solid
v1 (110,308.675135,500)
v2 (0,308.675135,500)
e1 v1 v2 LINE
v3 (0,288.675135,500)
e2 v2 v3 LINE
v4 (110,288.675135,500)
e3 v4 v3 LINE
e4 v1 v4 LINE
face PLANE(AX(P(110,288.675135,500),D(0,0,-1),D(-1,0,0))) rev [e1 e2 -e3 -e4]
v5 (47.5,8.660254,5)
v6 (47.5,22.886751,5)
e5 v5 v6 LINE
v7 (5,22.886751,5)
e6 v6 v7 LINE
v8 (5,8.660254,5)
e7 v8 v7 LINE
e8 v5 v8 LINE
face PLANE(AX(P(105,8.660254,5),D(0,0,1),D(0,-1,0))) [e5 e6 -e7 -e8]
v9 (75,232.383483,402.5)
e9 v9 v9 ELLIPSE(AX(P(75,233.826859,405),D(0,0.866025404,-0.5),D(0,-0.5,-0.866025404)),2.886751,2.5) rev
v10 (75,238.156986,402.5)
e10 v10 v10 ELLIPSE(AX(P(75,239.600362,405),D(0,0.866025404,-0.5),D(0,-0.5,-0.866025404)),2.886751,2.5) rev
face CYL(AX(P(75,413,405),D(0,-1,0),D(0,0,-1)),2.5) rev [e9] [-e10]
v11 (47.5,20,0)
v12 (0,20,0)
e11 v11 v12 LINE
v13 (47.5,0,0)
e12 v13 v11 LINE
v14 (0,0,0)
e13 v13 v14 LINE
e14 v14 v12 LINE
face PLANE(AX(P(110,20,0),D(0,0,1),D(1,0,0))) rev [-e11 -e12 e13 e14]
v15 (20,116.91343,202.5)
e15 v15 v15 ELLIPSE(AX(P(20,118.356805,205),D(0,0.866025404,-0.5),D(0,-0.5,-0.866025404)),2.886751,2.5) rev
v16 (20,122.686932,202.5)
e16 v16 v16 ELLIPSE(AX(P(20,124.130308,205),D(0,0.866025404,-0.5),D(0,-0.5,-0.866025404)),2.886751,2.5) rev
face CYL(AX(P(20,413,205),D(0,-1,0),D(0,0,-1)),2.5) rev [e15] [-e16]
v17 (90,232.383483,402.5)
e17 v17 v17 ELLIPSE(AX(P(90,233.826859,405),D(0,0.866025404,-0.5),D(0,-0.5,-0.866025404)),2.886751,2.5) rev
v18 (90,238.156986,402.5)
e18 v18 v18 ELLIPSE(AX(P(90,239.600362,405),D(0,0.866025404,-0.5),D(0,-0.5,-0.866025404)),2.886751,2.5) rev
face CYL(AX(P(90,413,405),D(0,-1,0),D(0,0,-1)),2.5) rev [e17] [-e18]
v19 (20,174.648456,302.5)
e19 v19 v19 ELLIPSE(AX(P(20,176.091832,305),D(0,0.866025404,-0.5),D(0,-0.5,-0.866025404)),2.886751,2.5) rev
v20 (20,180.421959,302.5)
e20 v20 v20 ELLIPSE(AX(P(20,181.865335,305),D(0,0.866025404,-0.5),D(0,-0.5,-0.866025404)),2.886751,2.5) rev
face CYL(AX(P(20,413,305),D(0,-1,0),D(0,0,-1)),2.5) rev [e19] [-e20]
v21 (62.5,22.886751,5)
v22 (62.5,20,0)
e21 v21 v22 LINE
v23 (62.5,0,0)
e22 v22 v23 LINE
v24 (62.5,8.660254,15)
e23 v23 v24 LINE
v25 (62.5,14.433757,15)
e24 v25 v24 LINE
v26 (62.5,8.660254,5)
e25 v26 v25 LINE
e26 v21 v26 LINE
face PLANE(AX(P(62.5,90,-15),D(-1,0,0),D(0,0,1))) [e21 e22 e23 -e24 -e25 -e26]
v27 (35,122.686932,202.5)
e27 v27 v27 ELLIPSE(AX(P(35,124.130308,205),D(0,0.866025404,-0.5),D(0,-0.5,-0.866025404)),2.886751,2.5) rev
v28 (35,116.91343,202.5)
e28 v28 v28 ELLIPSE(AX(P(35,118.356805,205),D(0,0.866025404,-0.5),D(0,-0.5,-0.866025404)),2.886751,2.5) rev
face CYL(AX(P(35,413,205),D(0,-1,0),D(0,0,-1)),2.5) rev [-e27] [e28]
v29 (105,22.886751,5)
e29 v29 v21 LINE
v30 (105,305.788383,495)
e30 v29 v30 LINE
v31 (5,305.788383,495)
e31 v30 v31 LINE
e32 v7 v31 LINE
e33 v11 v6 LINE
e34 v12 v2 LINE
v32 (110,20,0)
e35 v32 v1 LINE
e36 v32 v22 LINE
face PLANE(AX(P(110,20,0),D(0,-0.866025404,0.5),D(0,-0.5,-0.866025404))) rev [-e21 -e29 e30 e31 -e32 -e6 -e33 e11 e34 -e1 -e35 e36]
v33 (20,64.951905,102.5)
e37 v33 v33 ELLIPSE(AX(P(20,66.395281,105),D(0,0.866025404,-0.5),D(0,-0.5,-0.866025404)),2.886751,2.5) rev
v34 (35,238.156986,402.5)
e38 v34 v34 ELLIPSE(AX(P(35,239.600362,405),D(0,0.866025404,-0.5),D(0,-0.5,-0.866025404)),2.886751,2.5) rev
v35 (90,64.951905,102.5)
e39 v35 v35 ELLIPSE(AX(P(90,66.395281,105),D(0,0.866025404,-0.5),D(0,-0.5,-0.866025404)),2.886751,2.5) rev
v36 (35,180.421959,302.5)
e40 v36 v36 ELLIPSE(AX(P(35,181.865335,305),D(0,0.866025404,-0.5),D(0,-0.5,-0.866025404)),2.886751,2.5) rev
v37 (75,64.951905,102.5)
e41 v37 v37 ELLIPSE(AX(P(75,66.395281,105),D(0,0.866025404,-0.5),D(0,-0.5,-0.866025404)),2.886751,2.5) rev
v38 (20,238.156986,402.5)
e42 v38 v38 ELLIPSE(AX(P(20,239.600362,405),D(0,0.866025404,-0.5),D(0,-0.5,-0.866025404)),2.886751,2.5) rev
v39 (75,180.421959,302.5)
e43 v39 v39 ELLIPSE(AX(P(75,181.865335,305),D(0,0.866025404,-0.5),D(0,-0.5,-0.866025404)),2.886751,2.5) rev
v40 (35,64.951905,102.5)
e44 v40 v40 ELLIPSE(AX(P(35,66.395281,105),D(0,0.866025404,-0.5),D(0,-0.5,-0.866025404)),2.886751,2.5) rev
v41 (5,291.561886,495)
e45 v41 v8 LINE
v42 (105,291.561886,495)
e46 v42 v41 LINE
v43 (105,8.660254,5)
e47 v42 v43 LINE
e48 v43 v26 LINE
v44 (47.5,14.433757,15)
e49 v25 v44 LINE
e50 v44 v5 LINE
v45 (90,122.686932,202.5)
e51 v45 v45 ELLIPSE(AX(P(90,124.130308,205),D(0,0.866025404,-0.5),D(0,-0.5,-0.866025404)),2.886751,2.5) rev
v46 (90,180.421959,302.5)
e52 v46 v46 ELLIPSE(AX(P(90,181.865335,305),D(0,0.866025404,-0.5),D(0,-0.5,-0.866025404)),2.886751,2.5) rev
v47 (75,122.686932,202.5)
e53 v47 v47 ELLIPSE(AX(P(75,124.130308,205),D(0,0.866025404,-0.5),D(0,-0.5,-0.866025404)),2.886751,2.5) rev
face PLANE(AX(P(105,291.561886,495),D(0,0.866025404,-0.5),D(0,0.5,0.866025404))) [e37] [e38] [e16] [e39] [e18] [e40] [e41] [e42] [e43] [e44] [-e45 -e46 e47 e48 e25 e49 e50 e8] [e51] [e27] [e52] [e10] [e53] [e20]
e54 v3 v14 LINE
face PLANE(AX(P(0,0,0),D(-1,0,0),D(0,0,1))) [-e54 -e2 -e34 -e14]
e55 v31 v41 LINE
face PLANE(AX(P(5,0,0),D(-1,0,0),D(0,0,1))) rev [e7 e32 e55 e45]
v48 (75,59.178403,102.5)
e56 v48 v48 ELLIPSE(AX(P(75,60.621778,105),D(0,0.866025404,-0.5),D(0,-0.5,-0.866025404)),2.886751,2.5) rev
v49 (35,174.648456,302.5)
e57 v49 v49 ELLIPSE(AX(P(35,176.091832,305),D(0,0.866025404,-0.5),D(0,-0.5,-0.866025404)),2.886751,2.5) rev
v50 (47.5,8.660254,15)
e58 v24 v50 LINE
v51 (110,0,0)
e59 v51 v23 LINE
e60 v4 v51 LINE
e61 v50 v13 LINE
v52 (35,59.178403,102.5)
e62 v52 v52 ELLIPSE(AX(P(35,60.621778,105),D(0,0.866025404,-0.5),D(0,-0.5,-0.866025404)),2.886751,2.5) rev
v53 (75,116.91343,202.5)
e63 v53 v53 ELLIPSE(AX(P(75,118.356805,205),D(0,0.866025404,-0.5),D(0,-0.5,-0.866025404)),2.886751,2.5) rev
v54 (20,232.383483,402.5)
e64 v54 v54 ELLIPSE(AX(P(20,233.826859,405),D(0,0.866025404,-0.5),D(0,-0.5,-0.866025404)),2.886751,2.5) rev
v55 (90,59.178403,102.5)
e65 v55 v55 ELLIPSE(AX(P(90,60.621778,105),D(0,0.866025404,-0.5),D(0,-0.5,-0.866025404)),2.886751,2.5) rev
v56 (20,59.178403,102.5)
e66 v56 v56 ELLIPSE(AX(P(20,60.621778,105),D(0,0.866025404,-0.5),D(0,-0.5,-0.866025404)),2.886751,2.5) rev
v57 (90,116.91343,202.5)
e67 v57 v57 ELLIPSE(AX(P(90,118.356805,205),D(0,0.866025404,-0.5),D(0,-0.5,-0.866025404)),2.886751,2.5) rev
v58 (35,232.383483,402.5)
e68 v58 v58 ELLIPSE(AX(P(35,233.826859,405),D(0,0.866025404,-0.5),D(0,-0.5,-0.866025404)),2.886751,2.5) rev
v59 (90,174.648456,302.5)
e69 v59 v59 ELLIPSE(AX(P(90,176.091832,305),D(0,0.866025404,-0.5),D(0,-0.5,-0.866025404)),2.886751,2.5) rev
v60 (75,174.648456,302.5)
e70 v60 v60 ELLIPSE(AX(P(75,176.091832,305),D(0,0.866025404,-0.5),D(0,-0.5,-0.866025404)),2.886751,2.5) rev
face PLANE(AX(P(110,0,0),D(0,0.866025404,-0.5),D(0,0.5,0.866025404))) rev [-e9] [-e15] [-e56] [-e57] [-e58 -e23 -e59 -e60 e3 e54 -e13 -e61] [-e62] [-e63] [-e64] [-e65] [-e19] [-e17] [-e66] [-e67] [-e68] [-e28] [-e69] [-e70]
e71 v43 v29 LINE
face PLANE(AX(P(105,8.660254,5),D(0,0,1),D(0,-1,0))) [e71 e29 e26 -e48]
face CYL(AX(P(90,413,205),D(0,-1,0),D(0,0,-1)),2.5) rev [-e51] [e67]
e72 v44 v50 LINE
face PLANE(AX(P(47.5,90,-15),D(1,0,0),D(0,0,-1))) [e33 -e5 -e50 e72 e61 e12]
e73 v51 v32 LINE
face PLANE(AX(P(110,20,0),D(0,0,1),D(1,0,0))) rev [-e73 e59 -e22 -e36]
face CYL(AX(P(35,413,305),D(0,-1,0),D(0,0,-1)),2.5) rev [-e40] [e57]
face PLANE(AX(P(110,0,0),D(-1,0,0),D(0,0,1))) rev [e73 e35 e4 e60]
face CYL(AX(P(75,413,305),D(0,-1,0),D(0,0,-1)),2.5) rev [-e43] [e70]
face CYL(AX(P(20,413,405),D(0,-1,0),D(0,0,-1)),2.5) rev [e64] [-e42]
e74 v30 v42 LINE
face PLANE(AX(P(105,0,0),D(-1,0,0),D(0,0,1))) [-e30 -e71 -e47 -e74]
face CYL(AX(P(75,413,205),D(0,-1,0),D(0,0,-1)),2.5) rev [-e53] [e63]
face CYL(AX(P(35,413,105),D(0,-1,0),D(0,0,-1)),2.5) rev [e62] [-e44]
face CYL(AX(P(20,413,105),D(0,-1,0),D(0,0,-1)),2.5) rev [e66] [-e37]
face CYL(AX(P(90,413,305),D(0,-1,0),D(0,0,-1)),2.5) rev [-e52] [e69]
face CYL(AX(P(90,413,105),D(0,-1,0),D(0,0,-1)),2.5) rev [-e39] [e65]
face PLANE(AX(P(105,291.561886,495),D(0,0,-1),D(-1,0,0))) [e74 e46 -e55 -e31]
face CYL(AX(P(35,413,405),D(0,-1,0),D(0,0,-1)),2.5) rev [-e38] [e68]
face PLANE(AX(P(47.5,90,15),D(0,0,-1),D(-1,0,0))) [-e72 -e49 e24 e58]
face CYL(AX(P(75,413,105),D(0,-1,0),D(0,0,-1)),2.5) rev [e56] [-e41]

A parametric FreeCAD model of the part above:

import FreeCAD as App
import Part
import Sketcher
Q = App.Units.Quantity


def add_polygon(sketch, points):
    """Adds a closed chain of lines whose ends are joined by coincident constraints."""
    first, n = sketch.GeometryCount, len(points)
    for a, b in zip(points, points[1:] + points[:1]):
        sketch.addGeometry(Part.LineSegment(App.Vector(*a, 0), App.Vector(*b, 0)), False)
    for i in range(n):
        sketch.addConstraint(Sketcher.Constraint("Coincident", first + i, 2, first + (i + 1) % n, 1))

doc = App.newDocument("Part")
body = doc.addObject("PartDesign::Body", "Body")

sketch1 = doc.addObject("Sketcher::SketchObject", "Sketch")
body.addObject(sketch1)
sketch1.AttachmentSupport = (doc.YZ_Plane, [""])
sketch1.MapMode = "FlatFace"
add_polygon(sketch1, [(20, 0), (309, 500), (289, 500), (0, 0)])
sketch1.addConstraint(Sketcher.Constraint("Horizontal", 1))
sketch1.addConstraint(Sketcher.Constraint("Horizontal", 3))
sketch1.addConstraint(Sketcher.Constraint("Coincident", 2, 2, -1, 1))
sketch1.addConstraint(Sketcher.Constraint("Parallel", 0, 2))
sketch1.addConstraint(Sketcher.Constraint("DistanceX", 1, 2, 1, 1, 20.0))
sketch1.addConstraint(Sketcher.Constraint("Angle", 0, Q("60 deg")))
sketch1.addConstraint(Sketcher.Constraint("DistanceY", -1, 1, 0, 2, 500.0))
pad1 = doc.addObject("PartDesign::Pad", "Pad")
body.addObject(pad1)
pad1.Profile = sketch1
pad1.Length = 110

sketch2 = doc.addObject("Sketcher::SketchObject", "Sketch001")
body.addObject(sketch2)
sketch2.AttachmentSupport = (doc.YZ_Plane, [""])
sketch2.MapMode = "FlatFace"
sketch2.AttachmentOffset = App.Placement(App.Vector(0, 0, 5), App.Rotation())
add_polygon(sketch2, [(292, 495), (9, 5), (23, 5), (306, 495)])
sketch2.addConstraint(Sketcher.Constraint("Horizontal", 1))
sketch2.addConstraint(Sketcher.Constraint("Horizontal", 3))
sketch2.addConstraint(Sketcher.Constraint("Parallel", 0, 2))
sketch2.addConstraint(Sketcher.Constraint("Angle", 0, Q("-120 deg")))
sketch2.addConstraint(Sketcher.Constraint("DistanceY", -1, 1, 0, 2, 5.0))
sketch2.addConstraint(Sketcher.Constraint("DistanceY", -1, 1, 2, 2, 495.0))
sketch2.addConstraint(Sketcher.Constraint("DistanceX", 1, 1, 1, 2, 14.226497))
sketch2.addConstraint(Sketcher.Constraint("DistanceX", -1, 1, 1, 2, 22.886751))
pocket1 = doc.addObject("PartDesign::Pocket", "Pocket")
body.addObject(pocket1)
pocket1.Profile = sketch2
pocket1.Length = 100
pocket1.Reversed = True

sketch3 = doc.addObject("Sketcher::SketchObject", "Sketch002")
body.addObject(sketch3)
sketch3.AttachmentSupport = (doc.XZ_Plane, [""])
sketch3.MapMode = "FlatFace"
add_polygon(sketch3, [(48, -15), (48, 15), (62, 15), (62, -15)])
sketch3.addConstraint(Sketcher.Constraint("Vertical", 0))
sketch3.addConstraint(Sketcher.Constraint("Horizontal", 1))
sketch3.addConstraint(Sketcher.Constraint("Vertical", 2))
sketch3.addConstraint(Sketcher.Constraint("Horizontal", 3))
sketch3.addConstraint(Sketcher.Constraint("DistanceX", 1, 1, 1, 2, 15.0))
sketch3.addConstraint(Sketcher.Constraint("DistanceY", 0, 1, 0, 2, 30.0))
sketch3.addConstraint(Sketcher.Constraint("DistanceY", -1, 1, 0, 2, 15.0))
sketch3.addConstraint(Sketcher.Constraint("DistanceX", -1, 1, 0, 2, 47.5))
pocket2 = doc.addObject("PartDesign::Pocket", "Pocket001")
body.addObject(pocket2)
pocket2.Profile = sketch3
pocket2.Length = 90

sketch4 = doc.addObject("Sketcher::SketchObject", "Sketch003")
body.addObject(sketch4)
sketch4.AttachmentSupport = (doc.XZ_Plane, [""])
sketch4.MapMode = "FlatFace"
sketch4.addGeometry(Part.Circle(App.Vector(20, 105, 0), App.Vector(0, 0, 1), 2.5), False)
sketch4.addGeometry(Part.Circle(App.Vector(90, 105, 0), App.Vector(0, 0, 1), 2.5), False)
sketch4.addGeometry(Part.Circle(App.Vector(20, 205, 0), App.Vector(0, 0, 1), 2.5), False)
sketch4.addGeometry(Part.Circle(App.Vector(20, 305, 0), App.Vector(0, 0, 1), 2.5), False)
sketch4.addGeometry(Part.Circle(App.Vector(20, 405, 0), App.Vector(0, 0, 1), 2.5), False)
sketch4.addGeometry(Part.Circle(App.Vector(35, 205, 0), App.Vector(0, 0, 1), 2.5), False)
sketch4.addGeometry(Part.Circle(App.Vector(35, 305, 0), App.Vector(0, 0, 1), 2.5), False)
sketch4.addGeometry(Part.Circle(App.Vector(35, 405, 0), App.Vector(0, 0, 1), 2.5), False)
sketch4.addGeometry(Part.Circle(App.Vector(35, 105, 0), App.Vector(0, 0, 1), 2.5), False)
sketch4.addGeometry(Part.Circle(App.Vector(90, 205, 0), App.Vector(0, 0, 1), 2.5), False)
sketch4.addGeometry(Part.Circle(App.Vector(90, 305, 0), App.Vector(0, 0, 1), 2.5), False)
sketch4.addGeometry(Part.Circle(App.Vector(90, 405, 0), App.Vector(0, 0, 1), 2.5), False)
sketch4.addGeometry(Part.Circle(App.Vector(75, 205, 0), App.Vector(0, 0, 1), 2.5), False)
sketch4.addGeometry(Part.Circle(App.Vector(75, 305, 0), App.Vector(0, 0, 1), 2.5), False)
sketch4.addGeometry(Part.Circle(App.Vector(75, 405, 0), App.Vector(0, 0, 1), 2.5), False)
sketch4.addGeometry(Part.Circle(App.Vector(75, 105, 0), App.Vector(0, 0, 1), 2.5), False)
sketch4.addConstraint(Sketcher.Constraint("Equal", 0, 1))
sketch4.addConstraint(Sketcher.Constraint("Equal", 1, 2))
sketch4.addConstraint(Sketcher.Constraint("Equal", 2, 3))
sketch4.addConstraint(Sketcher.Constraint("Equal", 3, 4))
sketch4.addConstraint(Sketcher.Constraint("Equal", 4, 5))
sketch4.addConstraint(Sketcher.Constraint("Equal", 5, 6))
sketch4.addConstraint(Sketcher.Constraint("Equal", 6, 7))
sketch4.addConstraint(Sketcher.Constraint("Equal", 7, 8))
sketch4.addConstraint(Sketcher.Constraint("Equal", 8, 9))
sketch4.addConstraint(Sketcher.Constraint("Equal", 9, 10))
sketch4.addConstraint(Sketcher.Constraint("Equal", 10, 11))
sketch4.addConstraint(Sketcher.Constraint("Equal", 11, 12))
sketch4.addConstraint(Sketcher.Constraint("Equal", 12, 13))
sketch4.addConstraint(Sketcher.Constraint("Equal", 13, 14))
sketch4.addConstraint(Sketcher.Constraint("Equal", 14, 15))
sketch4.addConstraint(Sketcher.Constraint("Horizontal", 0, 3, 1, 3))
sketch4.addConstraint(Sketcher.Constraint("Horizontal", 2, 3, 5, 3))
sketch4.addConstraint(Sketcher.Constraint("Horizontal", 3, 3, 6, 3))
sketch4.addConstraint(Sketcher.Constraint("Horizontal", 4, 3, 7, 3))
sketch4.addConstraint(Sketcher.Constraint("Horizontal", 1, 3, 8, 3))
sketch4.addConstraint(Sketcher.Constraint("Horizontal", 5, 3, 9, 3))
sketch4.addConstraint(Sketcher.Constraint("Horizontal", 6, 3, 10, 3))
sketch4.addConstraint(Sketcher.Constraint("Horizontal", 7, 3, 11, 3))
sketch4.addConstraint(Sketcher.Constraint("Horizontal", 9, 3, 12, 3))
sketch4.addConstraint(Sketcher.Constraint("Horizontal", 10, 3, 13, 3))
sketch4.addConstraint(Sketcher.Constraint("Horizontal", 11, 3, 14, 3))
sketch4.addConstraint(Sketcher.Constraint("Horizontal", 8, 3, 15, 3))
sketch4.addConstraint(Sketcher.Constraint("Vertical", 0, 3, 2, 3))
sketch4.addConstraint(Sketcher.Constraint("Vertical", 2, 3, 3, 3))
sketch4.addConstraint(Sketcher.Constraint("Vertical", 3, 3, 4, 3))
sketch4.addConstraint(Sketcher.Constraint("Vertical", 5, 3, 6, 3))
sketch4.addConstraint(Sketcher.Constraint("Vertical", 6, 3, 7, 3))
sketch4.addConstraint(Sketcher.Constraint("Vertical", 7, 3, 8, 3))
sketch4.addConstraint(Sketcher.Constraint("Vertical", 1, 3, 9, 3))
sketch4.addConstraint(Sketcher.Constraint("Vertical", 9, 3, 10, 3))
sketch4.addConstraint(Sketcher.Constraint("Vertical", 10, 3, 11, 3))
sketch4.addConstraint(Sketcher.Constraint("Vertical", 12, 3, 13, 3))
sketch4.addConstraint(Sketcher.Constraint("Vertical", 13, 3, 14, 3))
sketch4.addConstraint(Sketcher.Constraint("Vertical", 14, 3, 15, 3))
sketch4.addConstraint(Sketcher.Constraint("Diameter", 0, 5.0))
sketch4.addConstraint(Sketcher.Constraint("DistanceX", -1, 1, 0, 3, 20.0))
sketch4.addConstraint(Sketcher.Constraint("DistanceY", -1, 1, 0, 3, 105.0))
sketch4.addConstraint(Sketcher.Constraint("DistanceX", -1, 1, 1, 3, 90.0))
sketch4.addConstraint(Sketcher.Constraint("DistanceY", -1, 1, 2, 3, 205.0))
sketch4.addConstraint(Sketcher.Constraint("DistanceY", -1, 1, 3, 3, 305.0))
sketch4.addConstraint(Sketcher.Constraint("DistanceY", -1, 1, 4, 3, 405.0))
sketch4.addConstraint(Sketcher.Constraint("DistanceX", -1, 1, 5, 3, 35.0))
sketch4.addConstraint(Sketcher.Constraint("DistanceX", -1, 1, 12, 3, 75.0))
pocket3 = doc.addObject("PartDesign::Pocket", "Pocket002")
body.addObject(pocket3)
pocket3.Profile = sketch4
pocket3.Length = 413

doc.recompute()
